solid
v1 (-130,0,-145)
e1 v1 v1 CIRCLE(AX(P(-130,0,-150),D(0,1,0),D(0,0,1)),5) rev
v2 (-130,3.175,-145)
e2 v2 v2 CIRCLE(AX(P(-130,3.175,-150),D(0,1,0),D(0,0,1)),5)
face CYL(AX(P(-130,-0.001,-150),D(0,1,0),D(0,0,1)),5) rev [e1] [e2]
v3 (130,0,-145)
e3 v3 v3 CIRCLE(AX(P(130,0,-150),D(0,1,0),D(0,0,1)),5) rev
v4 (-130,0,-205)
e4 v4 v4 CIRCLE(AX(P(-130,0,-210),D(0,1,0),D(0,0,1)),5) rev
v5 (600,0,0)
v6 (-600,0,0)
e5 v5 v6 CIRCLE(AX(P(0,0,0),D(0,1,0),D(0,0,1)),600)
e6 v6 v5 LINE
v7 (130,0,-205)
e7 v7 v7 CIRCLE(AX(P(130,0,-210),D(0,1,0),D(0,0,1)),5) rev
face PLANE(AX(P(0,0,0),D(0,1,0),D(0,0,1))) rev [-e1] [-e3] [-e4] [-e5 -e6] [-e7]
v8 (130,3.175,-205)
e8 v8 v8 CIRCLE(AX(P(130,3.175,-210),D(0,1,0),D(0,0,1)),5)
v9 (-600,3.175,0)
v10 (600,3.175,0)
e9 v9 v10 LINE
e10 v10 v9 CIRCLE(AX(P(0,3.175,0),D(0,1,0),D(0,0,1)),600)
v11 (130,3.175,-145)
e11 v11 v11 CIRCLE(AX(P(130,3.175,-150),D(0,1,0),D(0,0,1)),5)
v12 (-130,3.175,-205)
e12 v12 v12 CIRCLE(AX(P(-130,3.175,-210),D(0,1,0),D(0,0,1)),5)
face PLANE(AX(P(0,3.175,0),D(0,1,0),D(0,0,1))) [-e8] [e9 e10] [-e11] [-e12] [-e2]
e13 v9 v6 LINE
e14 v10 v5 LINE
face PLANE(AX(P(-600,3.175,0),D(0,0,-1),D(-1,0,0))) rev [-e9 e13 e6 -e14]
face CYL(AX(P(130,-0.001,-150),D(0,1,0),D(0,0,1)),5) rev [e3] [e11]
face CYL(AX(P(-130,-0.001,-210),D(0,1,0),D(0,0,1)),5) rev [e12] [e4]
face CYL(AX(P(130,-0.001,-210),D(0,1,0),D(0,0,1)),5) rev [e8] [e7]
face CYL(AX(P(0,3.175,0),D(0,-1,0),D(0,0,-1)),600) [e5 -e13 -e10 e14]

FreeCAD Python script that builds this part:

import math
import FreeCAD as App
import Part
import Sketcher
Q = App.Units.Quantity

doc = App.newDocument("Part")
params = doc.addObject("Spreadsheet::Sheet", "Params")
for row, (alias, value) in enumerate([
    ("sketch1_radius", "600 mm"),
    ("pad1_length", "3.175 mm"),
    ("sketch2_radius", "5 mm"),
    ("sketch3_radius", "5 mm"),
    ("sketch4_radius", "5 mm"),
    ("pocket3_length", "3.175 mm"),
    ("sketch5_radius", "5 mm"),
    ("pocket4_length", "3.175 mm"),
    ("sketch6_radius", "5 mm"),
    ("sketch7_radius", "5 mm"),
    ("sketch8_radius", "5 mm"),
    ("pocket7_length", "3.175 mm"),
    ("sketch9_radius", "5 mm"),
    ("pocket8_length", "3.175 mm"),
    ("sketch10_radius", "5 mm"),
    ("sketch11_radius", "5 mm"),
    ("sketch12_radius", "5 mm"),
    ("pocket11_length", "3.175 mm"),
    ("sketch13_radius", "5 mm"),
    ("pocket12_length", "3.175 mm"),
    ("sketch14_radius", "5 mm"),
    ("sketch15_radius", "5 mm"),
    ("sketch16_radius", "5 mm"),
    ("pocket15_length", "3.175 mm"),
    ("sketch17_radius", "5 mm"),
    ("pocket16_length", "3.175 mm"),
], start=1):
    params.set(f"A{row}", alias)
    params.set(f"B{row}", "=" + value)
    params.setAlias(f"B{row}", alias)

body = doc.addObject("PartDesign::Body", "Body")

# Sketch on XZ plane
sketch1 = body.newObject("Sketcher::SketchObject", "Sketch")
sketch1.AttachmentSupport = (doc.getObject("XZ_Plane"), [""])
sketch1.MapMode = "FlatFace"
sketch1.addGeometry([
    Part.LineSegment(App.Vector(-600, 0, 0), App.Vector(600, 0, 0)),
    Part.ArcOfCircle(Part.Circle(App.Vector(0, 0, 0), App.Vector(0, 0, 1), 600), math.radians(180), math.radians(360)),
], False)
sketch1.addConstraint([
    Sketcher.Constraint("Coincident", 0, 1, 1, 1),
    Sketcher.Constraint("Coincident", 1, 2, 0, 2),
    Sketcher.Constraint("Horizontal", 0),
    Sketcher.Constraint("Coincident", 1, 3, -1, 1),
    Sketcher.Constraint("PointOnObject", 0, 1, -1),
    Sketcher.Constraint("Radius", 1, Q("600 mm")),
])
sketch1.setExpression("Constraints[5]", "Params.sketch1_radius")
pad1 = body.newObject("PartDesign::Pad", "Pad")
pad1.Profile = sketch1
pad1.setExpression("Length", "Params.pad1_length")
pad1.Reversed = True

# Sketch on XZ plane
sketch2 = body.newObject("Sketcher::SketchObject", "Sketch001")
sketch2.AttachmentSupport = (doc.getObject("XZ_Plane"), [""])
sketch2.MapMode = "FlatFace"
sketch2.AttachmentOffset = App.Placement(App.Vector(0, 0, -3.175), App.Rotation())
sketch2.addGeometry([
    Part.LineSegment(App.Vector(-130, -205, 0), App.Vector(-130, -210, 0)),
    Part.LineSegment(App.Vector(-130, -210, 0), App.Vector(-125, -210, 0)),
    Part.ArcOfCircle(Part.Circle(App.Vector(-130, -210, 0), App.Vector(0, 0, 1), 5), math.radians(90), math.radians(360)),
], False)
sketch2.addConstraint([
    Sketcher.Constraint("Coincident", 0, 2, 1, 1),
    Sketcher.Constraint("Coincident", 1, 2, 2, 2),
    Sketcher.Constraint("Coincident", 2, 1, 0, 1),
    Sketcher.Constraint("Vertical", 0),
    Sketcher.Constraint("Horizontal", 1),
    Sketcher.Constraint("Coincident", 0, 2, 2, 3),
    Sketcher.Constraint("Radius", 2, Q("5 mm")),
    Sketcher.Constraint("DistanceX", 2, 3, -1, 1, Q("130 mm")),
    Sketcher.Constraint("DistanceY", 2, 3, -1, 1, Q("210 mm")),
])
sketch2.setExpression("Constraints[6]", "Params.sketch2_radius")
pocket1 = body.newObject("PartDesign::Pocket", "Pocket")
pocket1.Profile = sketch2
pocket1.Type = "UpToFirst"
pocket1.Reversed = True

# Sketch on XZ plane
sketch3 = body.newObject("Sketcher::SketchObject", "Sketch002")
sketch3.AttachmentSupport = (doc.getObject("XZ_Plane"), [""])
sketch3.MapMode = "FlatFace"
sketch3.AttachmentOffset = App.Placement(App.Vector(0, 0, -3.175), App.Rotation())
sketch3.addGeometry([
    Part.LineSegment(App.Vector(-125, -210, 0), App.Vector(-130, -210, 0)),
    Part.LineSegment(App.Vector(-130, -210, 0), App.Vector(-130, -205, 0)),
    Part.ArcOfCircle(Part.Circle(App.Vector(-130, -210, 0), App.Vector(0, 0, 1), 5), math.radians(0), math.radians(90)),
], False)
sketch3.addConstraint([
    Sketcher.Constraint("Coincident", 0, 2, 1, 1),
    Sketcher.Constraint("Coincident", 1, 2, 2, 2),
    Sketcher.Constraint("Coincident", 2, 1, 0, 1),
    Sketcher.Constraint("Horizontal", 0),
    Sketcher.Constraint("Vertical", 1),
    Sketcher.Constraint("Coincident", 0, 2, 2, 3),
    Sketcher.Constraint("Radius", 2, Q("5 mm")),
    Sketcher.Constraint("DistanceX", 2, 3, -1, 1, Q("130 mm")),
    Sketcher.Constraint("DistanceY", 2, 3, -1, 1, Q("210 mm")),
])
sketch3.setExpression("Constraints[6]", "Params.sketch3_radius")
pocket2 = body.newObject("PartDesign::Pocket", "Pocket001")
pocket2.Profile = sketch3
pocket2.Type = "UpToFirst"
pocket2.Reversed = True

# Sketch on XZ plane
sketch4 = body.newObject("Sketcher::SketchObject", "Sketch003")
sketch4.AttachmentSupport = (doc.getObject("XZ_Plane"), [""])
sketch4.MapMode = "FlatFace"
sketch4.AttachmentOffset = App.Placement(App.Vector(0, 0, -3.175), App.Rotation())
sketch4.addGeometry([
    Part.LineSegment(App.Vector(-130, -205, 0), App.Vector(-130, -210, 0)),
    Part.LineSegment(App.Vector(-130, -210, 0), App.Vector(-125, -210, 0)),
    Part.ArcOfCircle(Part.Circle(App.Vector(-130, -210, 0), App.Vector(0, 0, 1), 5), math.radians(90), math.radians(360)),
], False)
sketch4.addConstraint([
    Sketcher.Constraint("Coincident", 0, 2, 1, 1),
    Sketcher.Constraint("Coincident", 1, 2, 2, 2),
    Sketcher.Constraint("Coincident", 2, 1, 0, 1),
    Sketcher.Constraint("Vertical", 0),
    Sketcher.Constraint("Horizontal", 1),
    Sketcher.Constraint("Coincident", 0, 2, 2, 3),
    Sketcher.Constraint("Radius", 2, Q("5 mm")),
    Sketcher.Constraint("DistanceX", 2, 3, -1, 1, Q("130 mm")),
    Sketcher.Constraint("DistanceY", 2, 3, -1, 1, Q("210 mm")),
])
sketch4.setExpression("Constraints[6]", "Params.sketch4_radius")
pocket3 = body.newObject("PartDesign::Pocket", "Pocket002")
pocket3.Profile = sketch4
pocket3.setExpression("Length", "Params.pocket3_length")
pocket3.Reversed = True

# Sketch on XZ plane
sketch5 = body.newObject("Sketcher::SketchObject", "Sketch004")
sketch5.AttachmentSupport = (doc.getObject("XZ_Plane"), [""])
sketch5.MapMode = "FlatFace"
sketch5.AttachmentOffset = App.Placement(App.Vector(0, 0, -3.175), App.Rotation())
sketch5.addGeometry([
    Part.LineSegment(App.Vector(-125, -210, 0), App.Vector(-130, -210, 0)),
    Part.LineSegment(App.Vector(-130, -210, 0), App.Vector(-130, -205, 0)),
    Part.ArcOfCircle(Part.Circle(App.Vector(-130, -210, 0), App.Vector(0, 0, 1), 5), math.radians(0), math.radians(90)),
], False)
sketch5.addConstraint([
    Sketcher.Constraint("Coincident", 0, 2, 1, 1),
    Sketcher.Constraint("Coincident", 1, 2, 2, 2),
    Sketcher.Constraint("Coincident", 2, 1, 0, 1),
    Sketcher.Constraint("Horizontal", 0),
    Sketcher.Constraint("Vertical", 1),
    Sketcher.Constraint("Coincident", 0, 2, 2, 3),
    Sketcher.Constraint("Radius", 2, Q("5 mm")),
    Sketcher.Constraint("DistanceX", 2, 3, -1, 1, Q("130 mm")),
    Sketcher.Constraint("DistanceY", 2, 3, -1, 1, Q("210 mm")),
])
sketch5.setExpression("Constraints[6]", "Params.sketch5_radius")
pocket4 = body.newObject("PartDesign::Pocket", "Pocket003")
pocket4.Profile = sketch5
pocket4.setExpression("Length", "Params.pocket4_length")
pocket4.Reversed = True

# Sketch on XZ plane
sketch6 = body.newObject("Sketcher::SketchObject", "Sketch005")
sketch6.AttachmentSupport = (doc.getObject("XZ_Plane"), [""])
sketch6.MapMode = "FlatFace"
sketch6.AttachmentOffset = App.Placement(App.Vector(0, 0, -3.175), App.Rotation())
sketch6.addGeometry([
    Part.ArcOfCircle(Part.Circle(App.Vector(-130, -150, 0), App.Vector(0, 0, 1), 5), math.radians(-90), math.radians(0)),
    Part.LineSegment(App.Vector(-130, -155, 0), App.Vector(-130, -150, 0)),
    Part.LineSegment(App.Vector(-130, -150, 0), App.Vector(-125, -150, 0)),
], False)
sketch6.addConstraint([
    Sketcher.Constraint("Coincident", 0, 1, 1, 1),
    Sketcher.Constraint("Coincident", 1, 2, 2, 1),
    Sketcher.Constraint("Coincident", 2, 2, 0, 2),
    Sketcher.Constraint("Vertical", 1),
    Sketcher.Constraint("Horizontal", 2),
    Sketcher.Constraint("Coincident", 1, 2, 0, 3),
    Sketcher.Constraint("Radius", 0, Q("5 mm")),
    Sketcher.Constraint("DistanceX", 0, 3, -1, 1, Q("130 mm")),
    Sketcher.Constraint("DistanceY", 0, 3, -1, 1, Q("150 mm")),
])
sketch6.setExpression("Constraints[6]", "Params.sketch6_radius")
pocket5 = body.newObject("PartDesign::Pocket", "Pocket004")
pocket5.Profile = sketch6
pocket5.Type = "UpToFirst"
pocket5.Reversed = True

# Sketch on XZ plane
sketch7 = body.newObject("Sketcher::SketchObject", "Sketch006")
sketch7.AttachmentSupport = (doc.getObject("XZ_Plane"), [""])
sketch7.MapMode = "FlatFace"
sketch7.AttachmentOffset = App.Placement(App.Vector(0, 0, -3.175), App.Rotation())
sketch7.addGeometry([
    Part.LineSegment(App.Vector(-130, -150, 0), App.Vector(-130, -155, 0)),
    Part.ArcOfCircle(Part.Circle(App.Vector(-130, -150, 0), App.Vector(0, 0, 1), 5), math.radians(0), math.radians(270)),
    Part.LineSegment(App.Vector(-125, -150, 0), App.Vector(-130, -150, 0)),
], False)
sketch7.addConstraint([
    Sketcher.Constraint("Coincident", 0, 2, 1, 2),
    Sketcher.Constraint("Coincident", 1, 1, 2, 1),
    Sketcher.Constraint("Coincident", 2, 2, 0, 1),
    Sketcher.Constraint("Vertical", 0),
    Sketcher.Constraint("Horizontal", 2),
    Sketcher.Constraint("Coincident", 2, 2, 1, 3),
    Sketcher.Constraint("Radius", 1, Q("5 mm")),
    Sketcher.Constraint("DistanceX", 1, 3, -1, 1, Q("130 mm")),
    Sketcher.Constraint("DistanceY", 1, 3, -1, 1, Q("150 mm")),
])
sketch7.setExpression("Constraints[6]", "Params.sketch7_radius")
pocket6 = body.newObject("PartDesign::Pocket", "Pocket005")
pocket6.Profile = sketch7
pocket6.Type = "UpToFirst"
pocket6.Reversed = True

# Sketch on XZ plane
sketch8 = body.newObject("Sketcher::SketchObject", "Sketch007")
sketch8.AttachmentSupport = (doc.getObject("XZ_Plane"), [""])
sketch8.MapMode = "FlatFace"
sketch8.AttachmentOffset = App.Placement(App.Vector(0, 0, -3.175), App.Rotation())
sketch8.addGeometry([
    Part.ArcOfCircle(Part.Circle(App.Vector(-130, -150, 0), App.Vector(0, 0, 1), 5), math.radians(-90), math.radians(0)),
    Part.LineSegment(App.Vector(-130, -155, 0), App.Vector(-130, -150, 0)),
    Part.LineSegment(App.Vector(-130, -150, 0), App.Vector(-125, -150, 0)),
], False)
sketch8.addConstraint([
    Sketcher.Constraint("Coincident", 0, 1, 1, 1),
    Sketcher.Constraint("Coincident", 1, 2, 2, 1),
    Sketcher.Constraint("Coincident", 2, 2, 0, 2),
    Sketcher.Constraint("Vertical", 1),
    Sketcher.Constraint("Horizontal", 2),
    Sketcher.Constraint("Coincident", 1, 2, 0, 3),
    Sketcher.Constraint("Radius", 0, Q("5 mm")),
    Sketcher.Constraint("DistanceX", 0, 3, -1, 1, Q("130 mm")),
    Sketcher.Constraint("DistanceY", 0, 3, -1, 1, Q("150 mm")),
])
sketch8.setExpression("Constraints[6]", "Params.sketch8_radius")
pocket7 = body.newObject("PartDesign::Pocket", "Pocket006")
pocket7.Profile = sketch8
pocket7.setExpression("Length", "Params.pocket7_length")
pocket7.Reversed = True

# Sketch on XZ plane
sketch9 = body.newObject("Sketcher::SketchObject", "Sketch008")
sketch9.AttachmentSupport = (doc.getObject("XZ_Plane"), [""])
sketch9.MapMode = "FlatFace"
sketch9.AttachmentOffset = App.Placement(App.Vector(0, 0, -3.175), App.Rotation())
sketch9.addGeometry([
    Part.LineSegment(App.Vector(-130, -150, 0), App.Vector(-130, -155, 0)),
    Part.ArcOfCircle(Part.Circle(App.Vector(-130, -150, 0), App.Vector(0, 0, 1), 5), math.radians(0), math.radians(270)),
    Part.LineSegment(App.Vector(-125, -150, 0), App.Vector(-130, -150, 0)),
], False)
sketch9.addConstraint([
    Sketcher.Constraint("Coincident", 0, 2, 1, 2),
    Sketcher.Constraint("Coincident", 1, 1, 2, 1),
    Sketcher.Constraint("Coincident", 2, 2, 0, 1),
    Sketcher.Constraint("Vertical", 0),
    Sketcher.Constraint("Horizontal", 2),
    Sketcher.Constraint("Coincident", 2, 2, 1, 3),
    Sketcher.Constraint("Radius", 1, Q("5 mm")),
    Sketcher.Constraint("DistanceX", 1, 3, -1, 1, Q("130 mm")),
    Sketcher.Constraint("DistanceY", 1, 3, -1, 1, Q("150 mm")),
])
sketch9.setExpression("Constraints[6]", "Params.sketch9_radius")
pocket8 = body.newObject("PartDesign::Pocket", "Pocket007")
pocket8.Profile = sketch9
pocket8.setExpression("Length", "Params.pocket8_length")
pocket8.Reversed = True

# Sketch on XZ plane
sketch10 = body.newObject("Sketcher::SketchObject", "Sketch009")
sketch10.AttachmentSupport = (doc.getObject("XZ_Plane"), [""])
sketch10.MapMode = "FlatFace"
sketch10.AttachmentOffset = App.Placement(App.Vector(0, 0, -3.175), App.Rotation())
sketch10.addGeometry([
    Part.ArcOfCircle(Part.Circle(App.Vector(130, -150, 0), App.Vector(0, 0, 1), 5), math.radians(-90), math.radians(0)),
    Part.LineSegment(App.Vector(130, -155, 0), App.Vector(130, -150, 0)),
    Part.LineSegment(App.Vector(130, -150, 0), App.Vector(125, -150, 0)),
    Part.ArcOfCircle(Part.Circle(App.Vector(130, -150, 0), App.Vector(0, 0, 1), 5), math.radians(0), math.radians(180)),
], False)
sketch10.addConstraint([
    Sketcher.Constraint("Coincident", 0, 1, 1, 1),
    Sketcher.Constraint("Coincident", 1, 2, 2, 1),
    Sketcher.Constraint("Coincident", 2, 2, 3, 2),
    Sketcher.Constraint("Tangent", 3, 1, 0, 2),
    Sketcher.Constraint("Vertical", 1),
    Sketcher.Constraint("Horizontal", 2),
    Sketcher.Constraint("Coincident", 1, 2, 0, 3),
    Sketcher.Constraint("Equal", 0, 3),
    Sketcher.Constraint("Horizontal", 2, 2, 3, 1),
    Sketcher.Constraint("Radius", 0, Q("5 mm")),
    Sketcher.Constraint("DistanceX", -1, 1, 0, 3, Q("130 mm")),
    Sketcher.Constraint("DistanceY", 0, 3, -1, 1, Q("150 mm")),
])
sketch10.setExpression("Constraints[9]", "Params.sketch10_radius")
pocket9 = body.newObject("PartDesign::Pocket", "Pocket008")
pocket9.Profile = sketch10
pocket9.Type = "UpToFirst"
pocket9.Reversed = True

# Sketch on XZ plane
sketch11 = body.newObject("Sketcher::SketchObject", "Sketch010")
sketch11.AttachmentSupport = (doc.getObject("XZ_Plane"), [""])
sketch11.MapMode = "FlatFace"
sketch11.AttachmentOffset = App.Placement(App.Vector(0, 0, -3.175), App.Rotation())
sketch11.addGeometry([
    Part.LineSegment(App.Vector(130, -150, 0), App.Vector(130, -155, 0)),
    Part.ArcOfCircle(Part.Circle(App.Vector(130, -150, 0), App.Vector(0, 0, 1), 5), math.radians(180), math.radians(270)),
    Part.LineSegment(App.Vector(125, -150, 0), App.Vector(130, -150, 0)),
], False)
sketch11.addConstraint([
    Sketcher.Constraint("Coincident", 0, 2, 1, 2),
    Sketcher.Constraint("Coincident", 1, 1, 2, 1),
    Sketcher.Constraint("Coincident", 2, 2, 0, 1),
    Sketcher.Constraint("Vertical", 0),
    Sketcher.Constraint("Horizontal", 2),
    Sketcher.Constraint("Coincident", 2, 2, 1, 3),
    Sketcher.Constraint("Radius", 1, Q("5 mm")),
    Sketcher.Constraint("DistanceX", -1, 1, 1, 3, Q("130 mm")),
    Sketcher.Constraint("DistanceY", 1, 3, -1, 1, Q("150 mm")),
])
sketch11.setExpression("Constraints[6]", "Params.sketch11_radius")
pocket10 = body.newObject("PartDesign::Pocket", "Pocket009")
pocket10.Profile = sketch11
pocket10.Type = "UpToFirst"
pocket10.Reversed = True

# Sketch on XZ plane
sketch12 = body.newObject("Sketcher::SketchObject", "Sketch011")
sketch12.AttachmentSupport = (doc.getObject("XZ_Plane"), [""])
sketch12.MapMode = "FlatFace"
sketch12.AttachmentOffset = App.Placement(App.Vector(0, 0, -3.175), App.Rotation())
sketch12.addGeometry([
    Part.ArcOfCircle(Part.Circle(App.Vector(130, -150, 0), App.Vector(0, 0, 1), 5), math.radians(-90), math.radians(0)),
    Part.LineSegment(App.Vector(130, -155, 0), App.Vector(130, -150, 0)),
    Part.LineSegment(App.Vector(130, -150, 0), App.Vector(125, -150, 0)),
    Part.ArcOfCircle(Part.Circle(App.Vector(130, -150, 0), App.Vector(0, 0, 1), 5), math.radians(0), math.radians(180)),
], False)
sketch12.addConstraint([
    Sketcher.Constraint("Coincident", 0, 1, 1, 1),
    Sketcher.Constraint("Coincident", 1, 2, 2, 1),
    Sketcher.Constraint("Coincident", 2, 2, 3, 2),
    Sketcher.Constraint("Tangent", 3, 1, 0, 2),
    Sketcher.Constraint("Vertical", 1),
    Sketcher.Constraint("Horizontal", 2),
    Sketcher.Constraint("Coincident", 1, 2, 0, 3),
    Sketcher.Constraint("Equal", 0, 3),
    Sketcher.Constraint("Horizontal", 2, 2, 3, 1),
    Sketcher.Constraint("Radius", 0, Q("5 mm")),
    Sketcher.Constraint("DistanceX", -1, 1, 0, 3, Q("130 mm")),
    Sketcher.Constraint("DistanceY", 0, 3, -1, 1, Q("150 mm")),
])
sketch12.setExpression("Constraints[9]", "Params.sketch12_radius")
pocket11 = body.newObject("PartDesign::Pocket", "Pocket010")
pocket11.Profile = sketch12
pocket11.setExpression("Length", "Params.pocket11_length")
pocket11.Reversed = True

# Sketch on XZ plane
sketch13 = body.newObject("Sketcher::SketchObject", "Sketch012")
sketch13.AttachmentSupport = (doc.getObject("XZ_Plane"), [""])
sketch13.MapMode = "FlatFace"
sketch13.AttachmentOffset = App.Placement(App.Vector(0, 0, -3.175), App.Rotation())
sketch13.addGeometry([
    Part.LineSegment(App.Vector(130, -150, 0), App.Vector(130, -155, 0)),
    Part.ArcOfCircle(Part.Circle(App.Vector(130, -150, 0), App.Vector(0, 0, 1), 5), math.radians(180), math.radians(270)),
    Part.LineSegment(App.Vector(125, -150, 0), App.Vector(130, -150, 0)),
], False)
sketch13.addConstraint([
    Sketcher.Constraint("Coincident", 0, 2, 1, 2),
    Sketcher.Constraint("Coincident", 1, 1, 2, 1),
    Sketcher.Constraint("Coincident", 2, 2, 0, 1),
    Sketcher.Constraint("Vertical", 0),
    Sketcher.Constraint("Horizontal", 2),
    Sketcher.Constraint("Coincident", 2, 2, 1, 3),
    Sketcher.Constraint("Radius", 1, Q("5 mm")),
    Sketcher.Constraint("DistanceX", -1, 1, 1, 3, Q("130 mm")),
    Sketcher.Constraint("DistanceY", 1, 3, -1, 1, Q("150 mm")),
])
sketch13.setExpression("Constraints[6]", "Params.sketch13_radius")
pocket12 = body.newObject("PartDesign::Pocket", "Pocket011")
pocket12.Profile = sketch13
pocket12.setExpression("Length", "Params.pocket12_length")
pocket12.Reversed = True

# Sketch on XZ plane
sketch14 = body.newObject("Sketcher::SketchObject", "Sketch013")
sketch14.AttachmentSupport = (doc.getObject("XZ_Plane"), [""])
sketch14.MapMode = "FlatFace"
sketch14.AttachmentOffset = App.Placement(App.Vector(0, 0, -3.175), App.Rotation())
sketch14.addGeometry([
    Part.ArcOfCircle(Part.Circle(App.Vector(130, -210, 0), App.Vector(0, 0, 1), 5), math.radians(180), math.radians(360)),
    Part.LineSegment(App.Vector(125, -210, 0), App.Vector(130, -210, 0)),
    Part.LineSegment(App.Vector(130, -210, 0), App.Vector(130, -205, 0)),
    Part.ArcOfCircle(Part.Circle(App.Vector(130, -210, 0), App.Vector(0, 0, 1), 5), math.radians(0), math.radians(90)),
], False)
sketch14.addConstraint([
    Sketcher.Constraint("Coincident", 0, 1, 1, 1),
    Sketcher.Constraint("Coincident", 1, 2, 2, 1),
    Sketcher.Constraint("Coincident", 2, 2, 3, 2),
    Sketcher.Constraint("Tangent", 3, 1, 0, 2),
    Sketcher.Constraint("Horizontal", 1),
    Sketcher.Constraint("Vertical", 2),
    Sketcher.Constraint("Coincident", 1, 2, 0, 3),
    Sketcher.Constraint("Equal", 0, 3),
    Sketcher.Constraint("Horizontal", 1, 2, 3, 1),
    Sketcher.Constraint("Radius", 0, Q("5 mm")),
    Sketcher.Constraint("DistanceX", -1, 1, 0, 3, Q("130 mm")),
    Sketcher.Constraint("DistanceY", 0, 3, -1, 1, Q("210 mm")),
])
sketch14.setExpression("Constraints[9]", "Params.sketch14_radius")
pocket13 = body.newObject("PartDesign::Pocket", "Pocket012")
pocket13.Profile = sketch14
pocket13.Type = "UpToFirst"
pocket13.Reversed = True

# Sketch on XZ plane
sketch15 = body.newObject("Sketcher::SketchObject", "Sketch014")
sketch15.AttachmentSupport = (doc.getObject("XZ_Plane"), [""])
sketch15.MapMode = "FlatFace"
sketch15.AttachmentOffset = App.Placement(App.Vector(0, 0, -3.175), App.Rotation())
sketch15.addGeometry([
    Part.LineSegment(App.Vector(130, -210, 0), App.Vector(125, -210, 0)),
    Part.ArcOfCircle(Part.Circle(App.Vector(130, -210, 0), App.Vector(0, 0, 1), 5), math.radians(90), math.radians(180)),
    Part.LineSegment(App.Vector(130, -205, 0), App.Vector(130, -210, 0)),
], False)
sketch15.addConstraint([
    Sketcher.Constraint("Coincident", 0, 2, 1, 2),
    Sketcher.Constraint("Coincident", 1, 1, 2, 1),
    Sketcher.Constraint("Coincident", 2, 2, 0, 1),
    Sketcher.Constraint("Horizontal", 0),
    Sketcher.Constraint("Vertical", 2),
    Sketcher.Constraint("Coincident", 2, 2, 1, 3),
    Sketcher.Constraint("Radius", 1, Q("5 mm")),
    Sketcher.Constraint("DistanceX", -1, 1, 1, 3, Q("130 mm")),
    Sketcher.Constraint("DistanceY", 1, 3, -1, 1, Q("210 mm")),
])
sketch15.setExpression("Constraints[6]", "Params.sketch15_radius")
pocket14 = body.newObject("PartDesign::Pocket", "Pocket013")
pocket14.Profile = sketch15
pocket14.Type = "UpToFirst"
pocket14.Reversed = True

# Sketch on XZ plane
sketch16 = body.newObject("Sketcher::SketchObject", "Sketch015")
sketch16.AttachmentSupport = (doc.getObject("XZ_Plane"), [""])
sketch16.MapMode = "FlatFace"
sketch16.AttachmentOffset = App.Placement(App.Vector(0, 0, -3.175), App.Rotation())
sketch16.addGeometry([
    Part.ArcOfCircle(Part.Circle(App.Vector(130, -210, 0), App.Vector(0, 0, 1), 5), math.radians(180), math.radians(360)),
    Part.LineSegment(App.Vector(125, -210, 0), App.Vector(130, -210, 0)),
    Part.LineSegment(App.Vector(130, -210, 0), App.Vector(130, -205, 0)),
    Part.ArcOfCircle(Part.Circle(App.Vector(130, -210, 0), App.Vector(0, 0, 1), 5), math.radians(0), math.radians(90)),
], False)
sketch16.addConstraint([
    Sketcher.Constraint("Coincident", 0, 1, 1, 1),
    Sketcher.Constraint("Coincident", 1, 2, 2, 1),
    Sketcher.Constraint("Coincident", 2, 2, 3, 2),
    Sketcher.Constraint("Tangent", 3, 1, 0, 2),
    Sketcher.Constraint("Horizontal", 1),
    Sketcher.Constraint("Vertical", 2),
    Sketcher.Constraint("Coincident", 1, 2, 0, 3),
    Sketcher.Constraint("Equal", 0, 3),
    Sketcher.Constraint("Horizontal", 1, 2, 3, 1),
    Sketcher.Constraint("Radius", 0, Q("5 mm")),
    Sketcher.Constraint("DistanceX", -1, 1, 0, 3, Q("130 mm")),
    Sketcher.Constraint("DistanceY", 0, 3, -1, 1, Q("210 mm")),
])
sketch16.setExpression("Constraints[9]", "Params.sketch16_radius")
pocket15 = body.newObject("PartDesign::Pocket", "Pocket014")
pocket15.Profile = sketch16
pocket15.setExpression("Length", "Params.pocket15_length")
pocket15.Reversed = True

# Sketch on XZ plane
sketch17 = body.newObject("Sketcher::SketchObject", "Sketch016")
sketch17.AttachmentSupport = (doc.getObject("XZ_Plane"), [""])
sketch17.MapMode = "FlatFace"
sketch17.AttachmentOffset = App.Placement(App.Vector(0, 0, -3.175), App.Rotation())
sketch17.addGeometry([
    Part.LineSegment(App.Vector(130, -210, 0), App.Vector(125, -210, 0)),
    Part.ArcOfCircle(Part.Circle(App.Vector(130, -210, 0), App.Vector(0, 0, 1), 5), math.radians(90), math.radians(180)),
    Part.LineSegment(App.Vector(130, -205, 0), App.Vector(130, -210, 0)),
], False)
sketch17.addConstraint([
    Sketcher.Constraint("Coincident", 0, 2, 1, 2),
    Sketcher.Constraint("Coincident", 1, 1, 2, 1),
    Sketcher.Constraint("Coincident", 2, 2, 0, 1),
    Sketcher.Constraint("Horizontal", 0),
    Sketcher.Constraint("Vertical", 2),
    Sketcher.Constraint("Coincident", 2, 2, 1, 3),
    Sketcher.Constraint("Radius", 1, Q("5 mm")),
    Sketcher.Constraint("DistanceX", -1, 1, 1, 3, Q("130 mm")),
    Sketcher.Constraint("DistanceY", 1, 3, -1, 1, Q("210 mm")),
])
sketch17.setExpression("Constraints[6]", "Params.sketch17_radius")
pocket16 = body.newObject("PartDesign::Pocket", "Pocket015")
pocket16.Profile = sketch17
pocket16.setExpression("Length", "Params.pocket16_length")
pocket16.Reversed = True

doc.recompute()
